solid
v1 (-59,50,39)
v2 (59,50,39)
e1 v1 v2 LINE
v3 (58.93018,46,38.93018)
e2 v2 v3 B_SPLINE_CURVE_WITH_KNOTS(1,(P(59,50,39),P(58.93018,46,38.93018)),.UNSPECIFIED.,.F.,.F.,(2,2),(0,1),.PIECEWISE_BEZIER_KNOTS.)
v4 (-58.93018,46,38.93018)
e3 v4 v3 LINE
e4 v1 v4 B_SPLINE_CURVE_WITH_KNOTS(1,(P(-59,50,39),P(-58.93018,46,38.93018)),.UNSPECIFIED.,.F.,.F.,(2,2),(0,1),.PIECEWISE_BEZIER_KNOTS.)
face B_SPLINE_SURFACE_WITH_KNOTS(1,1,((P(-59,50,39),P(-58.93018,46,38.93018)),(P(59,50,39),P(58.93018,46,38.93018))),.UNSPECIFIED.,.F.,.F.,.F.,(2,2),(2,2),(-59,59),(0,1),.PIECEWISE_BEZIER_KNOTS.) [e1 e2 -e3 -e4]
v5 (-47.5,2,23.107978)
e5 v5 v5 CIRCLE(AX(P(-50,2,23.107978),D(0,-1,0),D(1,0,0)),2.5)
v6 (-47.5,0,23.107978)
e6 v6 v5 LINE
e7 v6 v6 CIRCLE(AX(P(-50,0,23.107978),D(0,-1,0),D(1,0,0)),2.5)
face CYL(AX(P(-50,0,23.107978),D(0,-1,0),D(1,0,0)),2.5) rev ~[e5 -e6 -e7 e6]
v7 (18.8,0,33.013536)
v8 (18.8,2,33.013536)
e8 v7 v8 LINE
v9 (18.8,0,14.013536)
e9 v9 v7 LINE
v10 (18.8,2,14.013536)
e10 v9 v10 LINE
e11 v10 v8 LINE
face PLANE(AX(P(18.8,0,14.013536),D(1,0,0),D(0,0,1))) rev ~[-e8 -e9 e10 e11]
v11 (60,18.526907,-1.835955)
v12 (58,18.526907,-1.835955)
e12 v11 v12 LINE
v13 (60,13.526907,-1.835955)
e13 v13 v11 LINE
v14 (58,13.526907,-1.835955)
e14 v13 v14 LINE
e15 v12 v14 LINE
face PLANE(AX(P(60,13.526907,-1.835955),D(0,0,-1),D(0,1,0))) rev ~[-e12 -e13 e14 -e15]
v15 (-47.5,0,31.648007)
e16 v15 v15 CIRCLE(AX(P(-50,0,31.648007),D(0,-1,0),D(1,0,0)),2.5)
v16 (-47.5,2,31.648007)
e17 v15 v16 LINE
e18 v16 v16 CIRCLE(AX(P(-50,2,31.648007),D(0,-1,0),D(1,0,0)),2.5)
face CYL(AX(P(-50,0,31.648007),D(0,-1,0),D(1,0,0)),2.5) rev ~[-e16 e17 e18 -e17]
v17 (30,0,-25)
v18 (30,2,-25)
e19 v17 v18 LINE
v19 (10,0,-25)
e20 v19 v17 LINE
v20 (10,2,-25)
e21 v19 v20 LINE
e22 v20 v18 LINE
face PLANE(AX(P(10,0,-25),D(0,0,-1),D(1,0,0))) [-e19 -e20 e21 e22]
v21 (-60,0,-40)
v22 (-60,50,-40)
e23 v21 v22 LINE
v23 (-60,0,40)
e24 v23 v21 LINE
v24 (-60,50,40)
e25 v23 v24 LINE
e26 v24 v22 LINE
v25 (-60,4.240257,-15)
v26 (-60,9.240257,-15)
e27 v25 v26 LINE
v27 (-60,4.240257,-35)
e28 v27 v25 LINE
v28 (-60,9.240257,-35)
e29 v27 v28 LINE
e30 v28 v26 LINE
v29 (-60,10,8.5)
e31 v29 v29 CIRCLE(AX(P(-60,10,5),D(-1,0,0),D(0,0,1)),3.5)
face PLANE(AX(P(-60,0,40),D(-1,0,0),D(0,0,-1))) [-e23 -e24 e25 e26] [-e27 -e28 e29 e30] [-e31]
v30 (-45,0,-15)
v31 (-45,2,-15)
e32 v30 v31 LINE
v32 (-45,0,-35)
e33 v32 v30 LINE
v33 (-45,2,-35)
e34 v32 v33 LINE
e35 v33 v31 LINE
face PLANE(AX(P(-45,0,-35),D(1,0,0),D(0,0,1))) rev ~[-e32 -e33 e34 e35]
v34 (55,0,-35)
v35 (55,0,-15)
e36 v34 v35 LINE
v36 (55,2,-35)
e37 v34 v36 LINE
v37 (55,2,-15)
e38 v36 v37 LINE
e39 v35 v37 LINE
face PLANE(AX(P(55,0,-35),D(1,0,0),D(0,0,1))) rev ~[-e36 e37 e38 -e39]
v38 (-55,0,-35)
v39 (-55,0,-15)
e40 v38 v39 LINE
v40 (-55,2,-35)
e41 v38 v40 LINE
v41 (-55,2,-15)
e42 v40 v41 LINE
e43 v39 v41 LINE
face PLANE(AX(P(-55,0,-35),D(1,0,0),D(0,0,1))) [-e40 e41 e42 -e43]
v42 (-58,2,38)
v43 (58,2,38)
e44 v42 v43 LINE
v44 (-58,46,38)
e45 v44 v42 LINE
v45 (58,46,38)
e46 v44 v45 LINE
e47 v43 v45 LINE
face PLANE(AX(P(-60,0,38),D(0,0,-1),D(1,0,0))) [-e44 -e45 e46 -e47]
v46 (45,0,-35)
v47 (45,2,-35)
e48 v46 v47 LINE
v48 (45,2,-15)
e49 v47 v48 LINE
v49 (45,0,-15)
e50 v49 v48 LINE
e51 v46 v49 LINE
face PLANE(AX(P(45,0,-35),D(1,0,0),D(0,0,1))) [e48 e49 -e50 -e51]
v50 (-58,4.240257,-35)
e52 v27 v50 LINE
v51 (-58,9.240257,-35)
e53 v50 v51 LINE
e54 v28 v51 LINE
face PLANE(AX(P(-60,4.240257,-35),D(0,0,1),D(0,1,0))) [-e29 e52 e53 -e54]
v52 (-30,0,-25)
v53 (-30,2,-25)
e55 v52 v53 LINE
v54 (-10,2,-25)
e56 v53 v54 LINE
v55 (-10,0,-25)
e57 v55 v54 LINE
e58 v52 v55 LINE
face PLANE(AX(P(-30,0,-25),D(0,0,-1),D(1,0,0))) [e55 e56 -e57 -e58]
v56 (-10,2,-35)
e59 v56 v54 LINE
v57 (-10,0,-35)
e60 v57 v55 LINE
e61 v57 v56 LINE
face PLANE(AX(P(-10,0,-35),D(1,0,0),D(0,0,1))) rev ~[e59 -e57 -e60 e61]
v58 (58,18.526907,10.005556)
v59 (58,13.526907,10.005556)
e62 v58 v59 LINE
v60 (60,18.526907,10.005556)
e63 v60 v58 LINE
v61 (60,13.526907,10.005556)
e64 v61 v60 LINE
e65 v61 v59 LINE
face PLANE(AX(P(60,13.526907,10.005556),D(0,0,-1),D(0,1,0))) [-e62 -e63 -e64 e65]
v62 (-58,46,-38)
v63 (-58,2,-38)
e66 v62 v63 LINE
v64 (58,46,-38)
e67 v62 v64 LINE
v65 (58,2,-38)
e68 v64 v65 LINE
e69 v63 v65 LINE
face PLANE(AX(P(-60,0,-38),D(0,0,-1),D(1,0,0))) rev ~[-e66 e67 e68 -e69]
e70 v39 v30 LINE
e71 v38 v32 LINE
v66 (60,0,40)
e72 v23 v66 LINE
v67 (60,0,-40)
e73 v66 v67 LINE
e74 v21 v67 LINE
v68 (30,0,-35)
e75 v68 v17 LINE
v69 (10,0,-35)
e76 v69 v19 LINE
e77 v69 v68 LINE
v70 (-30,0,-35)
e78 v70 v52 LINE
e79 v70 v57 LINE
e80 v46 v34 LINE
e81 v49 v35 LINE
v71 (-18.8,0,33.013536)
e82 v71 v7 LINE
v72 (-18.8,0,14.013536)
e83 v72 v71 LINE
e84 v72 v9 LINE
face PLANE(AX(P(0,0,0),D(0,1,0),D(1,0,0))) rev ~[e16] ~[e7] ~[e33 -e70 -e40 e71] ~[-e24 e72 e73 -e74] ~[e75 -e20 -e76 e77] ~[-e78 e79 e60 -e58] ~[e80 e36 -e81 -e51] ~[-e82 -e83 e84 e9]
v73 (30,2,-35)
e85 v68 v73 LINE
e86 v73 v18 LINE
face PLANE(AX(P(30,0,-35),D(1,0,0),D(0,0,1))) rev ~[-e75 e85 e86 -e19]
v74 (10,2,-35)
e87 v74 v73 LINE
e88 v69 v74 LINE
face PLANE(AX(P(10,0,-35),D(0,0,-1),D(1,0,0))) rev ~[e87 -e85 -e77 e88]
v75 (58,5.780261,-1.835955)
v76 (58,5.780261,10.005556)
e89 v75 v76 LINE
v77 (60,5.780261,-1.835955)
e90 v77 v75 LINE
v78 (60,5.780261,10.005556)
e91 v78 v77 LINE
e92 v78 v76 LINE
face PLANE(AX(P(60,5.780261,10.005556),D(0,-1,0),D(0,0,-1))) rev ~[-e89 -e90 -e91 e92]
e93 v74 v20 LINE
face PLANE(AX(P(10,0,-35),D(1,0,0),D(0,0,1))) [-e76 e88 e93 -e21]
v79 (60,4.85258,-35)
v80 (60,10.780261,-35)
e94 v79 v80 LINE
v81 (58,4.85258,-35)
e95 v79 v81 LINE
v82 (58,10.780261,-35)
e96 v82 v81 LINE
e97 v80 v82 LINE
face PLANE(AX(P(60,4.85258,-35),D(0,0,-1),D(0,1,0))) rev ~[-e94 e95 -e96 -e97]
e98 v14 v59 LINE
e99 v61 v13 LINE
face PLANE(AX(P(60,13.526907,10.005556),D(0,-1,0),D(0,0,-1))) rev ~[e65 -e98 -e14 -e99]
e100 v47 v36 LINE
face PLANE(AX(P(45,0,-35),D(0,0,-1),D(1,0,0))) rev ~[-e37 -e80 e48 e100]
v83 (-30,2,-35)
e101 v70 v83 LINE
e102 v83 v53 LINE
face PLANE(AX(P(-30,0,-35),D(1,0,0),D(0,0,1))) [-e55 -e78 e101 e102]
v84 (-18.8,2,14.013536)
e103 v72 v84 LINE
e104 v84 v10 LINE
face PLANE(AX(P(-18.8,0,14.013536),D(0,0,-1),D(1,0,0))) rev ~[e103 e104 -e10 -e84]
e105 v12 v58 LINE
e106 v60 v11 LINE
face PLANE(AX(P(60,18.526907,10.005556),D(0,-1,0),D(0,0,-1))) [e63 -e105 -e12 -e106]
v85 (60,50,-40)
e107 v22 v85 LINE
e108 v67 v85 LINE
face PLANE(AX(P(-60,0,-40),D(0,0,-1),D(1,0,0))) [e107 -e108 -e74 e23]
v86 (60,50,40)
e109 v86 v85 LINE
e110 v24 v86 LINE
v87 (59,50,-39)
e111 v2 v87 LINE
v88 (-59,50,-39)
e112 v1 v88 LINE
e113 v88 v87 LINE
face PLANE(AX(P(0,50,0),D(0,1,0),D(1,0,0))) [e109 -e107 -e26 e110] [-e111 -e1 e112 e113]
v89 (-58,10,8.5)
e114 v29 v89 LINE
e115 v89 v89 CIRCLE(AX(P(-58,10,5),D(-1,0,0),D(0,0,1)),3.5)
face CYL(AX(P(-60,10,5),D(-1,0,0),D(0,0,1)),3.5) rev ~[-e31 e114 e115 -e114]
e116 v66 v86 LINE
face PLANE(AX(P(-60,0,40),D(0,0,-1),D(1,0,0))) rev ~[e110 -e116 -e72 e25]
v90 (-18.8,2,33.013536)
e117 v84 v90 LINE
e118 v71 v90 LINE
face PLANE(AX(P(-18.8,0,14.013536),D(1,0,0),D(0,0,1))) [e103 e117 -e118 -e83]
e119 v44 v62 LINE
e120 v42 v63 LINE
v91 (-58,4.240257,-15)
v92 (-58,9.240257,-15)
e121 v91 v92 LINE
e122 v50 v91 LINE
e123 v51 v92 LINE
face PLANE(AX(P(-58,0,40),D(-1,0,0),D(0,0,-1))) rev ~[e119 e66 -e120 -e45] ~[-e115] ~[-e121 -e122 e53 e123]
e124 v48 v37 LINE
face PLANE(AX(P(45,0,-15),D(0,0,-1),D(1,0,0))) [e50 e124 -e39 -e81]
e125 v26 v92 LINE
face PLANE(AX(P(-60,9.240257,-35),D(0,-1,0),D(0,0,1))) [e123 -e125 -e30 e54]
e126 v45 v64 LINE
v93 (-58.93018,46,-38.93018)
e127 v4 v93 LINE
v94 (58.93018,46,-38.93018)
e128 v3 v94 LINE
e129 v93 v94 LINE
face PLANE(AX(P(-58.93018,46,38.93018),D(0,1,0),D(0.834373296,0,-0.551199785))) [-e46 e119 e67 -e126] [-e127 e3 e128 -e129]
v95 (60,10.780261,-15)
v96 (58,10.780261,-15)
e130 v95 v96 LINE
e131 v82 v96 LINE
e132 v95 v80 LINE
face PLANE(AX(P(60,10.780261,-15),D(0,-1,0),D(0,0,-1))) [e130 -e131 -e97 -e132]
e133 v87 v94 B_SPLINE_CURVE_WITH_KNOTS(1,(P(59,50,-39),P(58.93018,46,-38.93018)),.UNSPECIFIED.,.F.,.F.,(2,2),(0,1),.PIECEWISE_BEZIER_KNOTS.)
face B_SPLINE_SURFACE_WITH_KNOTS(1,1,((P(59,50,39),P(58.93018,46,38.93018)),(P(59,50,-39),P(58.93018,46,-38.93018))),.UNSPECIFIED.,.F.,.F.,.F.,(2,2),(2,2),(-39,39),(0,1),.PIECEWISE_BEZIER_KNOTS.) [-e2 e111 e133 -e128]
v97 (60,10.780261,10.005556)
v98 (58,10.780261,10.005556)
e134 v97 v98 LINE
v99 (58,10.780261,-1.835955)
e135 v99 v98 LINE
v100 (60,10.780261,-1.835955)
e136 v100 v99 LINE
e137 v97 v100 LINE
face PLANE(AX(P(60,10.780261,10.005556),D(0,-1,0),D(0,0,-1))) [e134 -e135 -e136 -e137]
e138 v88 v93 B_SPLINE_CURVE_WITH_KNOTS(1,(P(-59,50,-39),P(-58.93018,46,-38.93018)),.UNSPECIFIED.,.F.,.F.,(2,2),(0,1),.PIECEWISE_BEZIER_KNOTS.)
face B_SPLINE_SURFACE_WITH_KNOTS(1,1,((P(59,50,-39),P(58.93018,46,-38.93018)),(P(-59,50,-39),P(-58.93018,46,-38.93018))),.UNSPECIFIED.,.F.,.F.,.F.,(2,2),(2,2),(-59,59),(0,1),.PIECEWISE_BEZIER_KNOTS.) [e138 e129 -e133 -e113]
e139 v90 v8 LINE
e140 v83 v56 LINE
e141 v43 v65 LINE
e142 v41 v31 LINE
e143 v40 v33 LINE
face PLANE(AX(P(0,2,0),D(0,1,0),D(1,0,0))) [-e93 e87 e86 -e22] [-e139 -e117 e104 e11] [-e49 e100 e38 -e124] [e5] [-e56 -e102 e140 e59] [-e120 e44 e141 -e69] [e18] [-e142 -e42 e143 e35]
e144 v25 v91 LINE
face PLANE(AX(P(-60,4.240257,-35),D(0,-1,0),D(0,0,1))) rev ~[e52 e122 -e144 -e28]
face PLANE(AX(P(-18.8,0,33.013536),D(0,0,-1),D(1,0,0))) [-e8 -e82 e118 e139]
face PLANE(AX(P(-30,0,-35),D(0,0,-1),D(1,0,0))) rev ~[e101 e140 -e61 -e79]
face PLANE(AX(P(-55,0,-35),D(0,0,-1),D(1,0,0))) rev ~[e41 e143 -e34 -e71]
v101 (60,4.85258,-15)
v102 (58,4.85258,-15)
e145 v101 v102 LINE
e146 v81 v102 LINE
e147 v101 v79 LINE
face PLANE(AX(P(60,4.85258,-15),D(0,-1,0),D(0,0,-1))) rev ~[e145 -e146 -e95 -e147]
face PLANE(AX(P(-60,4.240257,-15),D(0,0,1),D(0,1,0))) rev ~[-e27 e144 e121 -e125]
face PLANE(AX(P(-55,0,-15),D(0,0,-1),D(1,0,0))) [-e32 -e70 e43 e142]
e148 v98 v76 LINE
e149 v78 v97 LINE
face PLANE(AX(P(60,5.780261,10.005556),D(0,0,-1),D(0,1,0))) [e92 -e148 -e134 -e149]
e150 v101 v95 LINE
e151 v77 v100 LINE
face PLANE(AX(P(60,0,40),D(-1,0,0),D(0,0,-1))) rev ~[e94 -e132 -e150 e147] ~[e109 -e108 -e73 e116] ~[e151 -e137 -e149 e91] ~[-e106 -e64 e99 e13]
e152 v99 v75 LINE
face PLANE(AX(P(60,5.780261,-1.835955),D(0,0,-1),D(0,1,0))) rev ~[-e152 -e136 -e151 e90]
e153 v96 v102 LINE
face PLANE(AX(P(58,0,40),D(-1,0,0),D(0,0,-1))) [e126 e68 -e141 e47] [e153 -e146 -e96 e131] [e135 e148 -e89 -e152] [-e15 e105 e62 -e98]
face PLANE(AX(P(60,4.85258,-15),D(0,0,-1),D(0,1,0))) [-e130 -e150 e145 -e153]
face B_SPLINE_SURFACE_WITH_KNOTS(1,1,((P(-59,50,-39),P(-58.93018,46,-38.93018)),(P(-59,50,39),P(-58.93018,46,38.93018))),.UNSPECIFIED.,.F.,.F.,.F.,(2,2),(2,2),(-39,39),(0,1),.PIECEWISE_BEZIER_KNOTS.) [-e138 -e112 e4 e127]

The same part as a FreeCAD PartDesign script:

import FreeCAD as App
import Part
import Sketcher


def faces_at(feature, points):
    """Names of the faces that lie closest to the given points."""
    faces = feature.Shape.Faces
    near = lambda p: min(range(len(faces)), key=lambda i: faces[i].distToShape(Part.Vertex(*p))[0])
    return sorted({f"Face{near(p) + 1}" for p in points})


def add_polygon(sketch, points):
    """Adds a closed chain of lines whose ends are joined by coincident constraints."""
    first, n = sketch.GeometryCount, len(points)
    for a, b in zip(points, points[1:] + points[:1]):
        sketch.addGeometry(Part.LineSegment(App.Vector(*a, 0), App.Vector(*b, 0)), False)
    for i in range(n):
        sketch.addConstraint(Sketcher.Constraint("Coincident", first + i, 2, first + (i + 1) % n, 1))

doc = App.newDocument("Part")
body = doc.addObject("PartDesign::Body", "Body")

sketch1 = body.newObject("Sketcher::SketchObject", "Sketch")
sketch1.AttachmentSupport = (doc.getObject("XZ_Plane"), [""])
sketch1.MapMode = "FlatFace"
add_polygon(sketch1, [(-60, -40), (-60, 40), (60, 40), (60, -40)])
sketch1.addConstraint([
    Sketcher.Constraint("Vertical", 0),
    Sketcher.Constraint("Horizontal", 1),
    Sketcher.Constraint("Vertical", 2),
    Sketcher.Constraint("Horizontal", 3),
    Sketcher.Constraint("Symmetric", 0, 2, 2, 2, -1, 1),
    Sketcher.Constraint("DistanceX", 1, 1, 1, 2, 120.0),
    Sketcher.Constraint("DistanceY", 0, 1, 0, 2, 80.0),
])
pad1 = body.newObject("PartDesign::Pad", "Pad")
pad1.Profile = sketch1
pad1.Length = 50
pad1.Reversed = True
doc.recompute()

thickness = body.newObject("PartDesign::Thickness", "Thickness")
thickness.Base = (pad1, faces_at(pad1, [(0, 50, 0)]))
thickness.Value = 2
thickness.Reversed = True
thickness.Join = "Intersection"

sketch2 = body.newObject("Sketcher::SketchObject", "Sketch001")
sketch2.AttachmentSupport = (doc.getObject("XZ_Plane"), [""])
sketch2.MapMode = "FlatFace"
sketch2.addGeometry(Part.Circle(App.Vector(-50, 31.6, 0), App.Vector(0, 0, 1), 2.5), False)
sketch2.addGeometry(Part.Circle(App.Vector(-50, 23.1, 0), App.Vector(0, 0, 1), 2.5), False)
add_polygon(sketch2, [(-18.8, 33), (-18.8, 14), (18.8, 14), (18.8, 33)])
add_polygon(sketch2, [(-55, -15), (-55, -35), (-45, -35), (-45, -15)])
add_polygon(sketch2, [(10, -25), (10, -35), (30, -35), (30, -25)])
add_polygon(sketch2, [(-30, -25), (-30, -35), (-10, -35), (-10, -25)])
add_polygon(sketch2, [(45, -15), (45, -35), (55, -35), (55, -15)])
sketch2.addConstraint([
    Sketcher.Constraint("Vertical", 2),
    Sketcher.Constraint("Horizontal", 3),
    Sketcher.Constraint("Vertical", 4),
    Sketcher.Constraint("Horizontal", 5),
    Sketcher.Constraint("Vertical", 6),
    Sketcher.Constraint("Horizontal", 7),
    Sketcher.Constraint("Vertical", 8),
    Sketcher.Constraint("Horizontal", 9),
    Sketcher.Constraint("Vertical", 10),
    Sketcher.Constraint("Horizontal", 11),
    Sketcher.Constraint("Vertical", 12),
    Sketcher.Constraint("Horizontal", 13),
    Sketcher.Constraint("Vertical", 14),
    Sketcher.Constraint("Horizontal", 15),
    Sketcher.Constraint("Vertical", 16),
    Sketcher.Constraint("Horizontal", 17),
    Sketcher.Constraint("Vertical", 18),
    Sketcher.Constraint("Horizontal", 19),
    Sketcher.Constraint("Vertical", 20),
    Sketcher.Constraint("Horizontal", 21),
    Sketcher.Constraint("Equal", 0, 1),
    Sketcher.Constraint("Symmetric", 11, 2, 14, 2, -2),
    Sketcher.Constraint("Symmetric", 13, 2, 16, 2, -2),
    Sketcher.Constraint("Symmetric", 7, 2, 18, 2, -2),
    Sketcher.Constraint("Symmetric", 9, 2, 20, 2, -2),
    Sketcher.Constraint("Horizontal", 7, 2, 10, 2),
    Sketcher.Constraint("Vertical", 0, 3, 1, 3),
    Sketcher.Constraint("Equal", 17, 6),
    Sketcher.Constraint("Equal", 21, 10),
    Sketcher.Constraint("Diameter", 0, 5.0),
    Sketcher.Constraint("DistanceX", 7, 1, 7, 2, 10.0),
    Sketcher.Constraint("DistanceX", 11, 1, 11, 2, 20.0),
    Sketcher.Constraint("DistanceY", 2, 2, 2, 1, 19.0),
    Sketcher.Constraint("DistanceX", 3, 1, 3, 2, 37.6),
    Sketcher.Constraint("DistanceX", 0, 3, -1, 1, 50.0),
    Sketcher.Constraint("DistanceX", 6, 2, -1, 1, 55.0),
    Sketcher.Constraint("DistanceY", 6, 2, -1, 1, 35.0),
    Sketcher.Constraint("DistanceX", -1, 1, 10, 2, 10.0),
    Sketcher.Constraint("DistanceX", 2, 2, -1, 1, 18.8),
    Sketcher.Constraint("DistanceY", 1, 3, 0, 3, 8.54003),
    Sketcher.Constraint("DistanceY", 2, 2, 1, 3, 9.094441),
    Sketcher.Constraint("DistanceY", -1, 1, 0, 3, 31.648007),
])
pocket1 = body.newObject("PartDesign::Pocket", "Pocket")
pocket1.Profile = sketch2
pocket1.Length = 2

sketch3 = body.newObject("Sketcher::SketchObject", "Sketch002")
sketch3.AttachmentSupport = (doc.getObject("YZ_Plane"), [""])
sketch3.MapMode = "FlatFace"
sketch3.AttachmentOffset = App.Placement(App.Vector(0, 0, -60), App.Rotation())
sketch3.addGeometry(Part.Circle(App.Vector(10, 5, 0), App.Vector(0, 0, 1), 3.5), False)
add_polygon(sketch3, [(9.2, -35), (4.2, -35), (4.2, -15), (9.2, -15)])
sketch3.addConstraint([
    Sketcher.Constraint("Horizontal", 1),
    Sketcher.Constraint("Vertical", 2),
    Sketcher.Constraint("Horizontal", 3),
    Sketcher.Constraint("Vertical", 4),
    Sketcher.Constraint("Diameter", 0, 7.0),
    Sketcher.Constraint("DistanceX", 1, 2, 1, 1, 5.0),
    Sketcher.Constraint("DistanceY", 2, 1, 2, 2, 20.0),
    Sketcher.Constraint("DistanceX", -1, 1, 0, 3, 10.0),
    Sketcher.Constraint("DistanceY", -1, 1, 0, 3, 5.0),
    Sketcher.Constraint("DistanceY", 1, 2, -1, 1, 35.0),
    Sketcher.Constraint("DistanceX", -1, 1, 1, 2, 4.240257),
])
pocket2 = body.newObject("PartDesign::Pocket", "Pocket001")
pocket2.Profile = sketch3
pocket2.Length = 2
pocket2.Reversed = True

sketch4 = body.newObject("Sketcher::SketchObject", "Sketch003")
sketch4.AttachmentSupport = (doc.getObject("XZ_Plane"), [""])
sketch4.MapMode = "FlatFace"
sketch4.AttachmentOffset = App.Placement(App.Vector(0, 0, -50), App.Rotation())
add_polygon(sketch4, [(-59, -39), (-59, 39), (59, 39), (59, -39)])
sketch4.addConstraint([
    Sketcher.Constraint("Vertical", 0),
    Sketcher.Constraint("Horizontal", 1),
    Sketcher.Constraint("Vertical", 2),
    Sketcher.Constraint("Horizontal", 3),
    Sketcher.Constraint("Symmetric", 0, 2, 2, 2, -1, 1),
    Sketcher.Constraint("DistanceX", 1, 1, 1, 2, 118.0),
    Sketcher.Constraint("DistanceY", 0, 1, 0, 2, 78.0),
])
pocket3 = body.newObject("PartDesign::Pocket", "Pocket002")
pocket3.Profile = sketch4
pocket3.Length = 4
pocket3.Reversed = True
pocket3.TaperAngle = -1

sketch5 = body.newObject("Sketcher::SketchObject", "Sketch004")
sketch5.AttachmentSupport = (doc.getObject("YZ_Plane"), [""])
sketch5.MapMode = "FlatFace"
sketch5.AttachmentOffset = App.Placement(App.Vector(0, 0, 60), App.Rotation())
add_polygon(sketch5, [(11, 10), (6, 10), (6, -2), (11, -2)])
add_polygon(sketch5, [(19, 10), (14, 10), (14, -2), (19, -2)])
add_polygon(sketch5, [(11, -15), (5, -15), (5, -35), (11, -35)])
sketch5.addConstraint([
    Sketcher.Constraint("Horizontal", 0),
    Sketcher.Constraint("Vertical", 1),
    Sketcher.Constraint("Horizontal", 2),
    Sketcher.Constraint("Vertical", 3),
    Sketcher.Constraint("Horizontal", 4),
    Sketcher.Constraint("Vertical", 5),
    Sketcher.Constraint("Horizontal", 6),
    Sketcher.Constraint("Vertical", 7),
    Sketcher.Constraint("Horizontal", 8),
    Sketcher.Constraint("Vertical", 9),
    Sketcher.Constraint("Horizontal", 10),
    Sketcher.Constraint("Vertical", 11),
    Sketcher.Constraint("Horizontal", 3, 2, 4, 2),
    Sketcher.Constraint("Horizontal", 2, 2, 5, 2),
    Sketcher.Constraint("Vertical", 3, 2, 10, 2),
    Sketcher.Constraint("Equal", 2, 4),
    Sketcher.Constraint("DistanceX", 0, 2, 0, 1, 5.0),
    Sketcher.Constraint("DistanceY", 9, 2, 9, 1, 20.0),
    Sketcher.Constraint("DistanceY", 8, 2, -1, 1, 15.0),
    Sketcher.Constraint("DistanceX", 8, 2, 8, 1, 5.927681),
    Sketcher.Constraint("DistanceY", 1, 2, 1, 1, 11.841511),
    Sketcher.Constraint("DistanceX", -1, 1, 0, 2, 5.780261),
    Sketcher.Constraint("DistanceY", -1, 1, 0, 2, 10.005556),
    Sketcher.Constraint("DistanceX", -1, 1, 4, 2, 13.526907),
])
pocket4 = body.newObject("PartDesign::Pocket", "Pocket003")
pocket4.Profile = sketch5
pocket4.Length = 4

doc.recompute()
